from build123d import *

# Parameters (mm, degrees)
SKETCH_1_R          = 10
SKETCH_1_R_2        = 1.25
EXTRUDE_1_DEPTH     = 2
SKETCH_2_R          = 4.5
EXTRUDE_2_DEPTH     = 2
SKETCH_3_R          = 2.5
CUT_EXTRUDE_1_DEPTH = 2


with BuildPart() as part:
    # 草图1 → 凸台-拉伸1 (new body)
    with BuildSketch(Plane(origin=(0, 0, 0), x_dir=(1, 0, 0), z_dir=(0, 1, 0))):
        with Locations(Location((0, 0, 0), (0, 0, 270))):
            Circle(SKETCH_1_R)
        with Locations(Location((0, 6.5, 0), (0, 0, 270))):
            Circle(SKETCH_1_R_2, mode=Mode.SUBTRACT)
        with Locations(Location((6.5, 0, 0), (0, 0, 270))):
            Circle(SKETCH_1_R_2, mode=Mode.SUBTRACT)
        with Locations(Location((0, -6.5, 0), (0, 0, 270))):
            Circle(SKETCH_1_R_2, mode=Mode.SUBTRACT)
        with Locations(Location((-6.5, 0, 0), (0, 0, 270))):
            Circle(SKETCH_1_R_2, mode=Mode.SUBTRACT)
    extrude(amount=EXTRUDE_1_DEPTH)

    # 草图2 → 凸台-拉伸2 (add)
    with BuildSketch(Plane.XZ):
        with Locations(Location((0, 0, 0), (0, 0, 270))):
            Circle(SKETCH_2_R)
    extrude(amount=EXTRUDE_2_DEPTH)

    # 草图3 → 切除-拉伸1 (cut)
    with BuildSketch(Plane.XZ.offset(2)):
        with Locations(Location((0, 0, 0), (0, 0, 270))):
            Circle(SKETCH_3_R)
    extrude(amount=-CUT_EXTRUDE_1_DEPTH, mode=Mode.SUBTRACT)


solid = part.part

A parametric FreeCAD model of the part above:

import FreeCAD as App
import Part
import Sketcher

doc = App.newDocument("Part")
params = doc.addObject("Spreadsheet::Sheet", "Params")
for row, (alias, value) in enumerate([
    ("sketch1_diameter", "20 mm"),
    ("sketch1_diameter2", "2.5 mm"),
    ("pad1_length", "2 mm"),
    ("sketch2_diameter", "9 mm"),
    ("pad2_length", "2 mm"),
    ("sketch3_diameter", "5 mm"),
    ("pocket1_length", "2 mm"),
], start=1):
    params.set(f"A{row}", alias)
    params.set(f"B{row}", "=" + value)
    params.setAlias(f"B{row}", alias)

body = doc.addObject("PartDesign::Body", "Body")

sketch1 = doc.addObject("Sketcher::SketchObject", "Sketch")
body.addObject(sketch1)
sketch1.AttachmentSupport = (doc.XZ_Plane, [""])
sketch1.MapMode = "FlatFace"
sketch1.addGeometry(Part.Circle(App.Vector(0, 0, 0), App.Vector(0, 0, 1), 10), False)
sketch1.addGeometry(Part.Circle(App.Vector(0, -6.5, 0), App.Vector(0, 0, 1), 1.25), False)
sketch1.addGeometry(Part.Circle(App.Vector(-6.5, 0, 0), App.Vector(0, 0, 1), 1.25), False)
sketch1.addGeometry(Part.Circle(App.Vector(6.5, 0, 0), App.Vector(0, 0, 1), 1.25), False)
sketch1.addGeometry(Part.Circle(App.Vector(0, 6.5, 0), App.Vector(0, 0, 1), 1.25), False)
sketch1.addConstraint(Sketcher.Constraint("Coincident", 0, 3, -1, 1))
sketch1.addConstraint(Sketcher.Constraint("Equal", 1, 2))
sketch1.addConstraint(Sketcher.Constraint("Equal", 2, 3))
sketch1.addConstraint(Sketcher.Constraint("Equal", 3, 4))
sketch1.addConstraint(Sketcher.Constraint("Symmetric", 2, 3, 3, 3, -1, 1))
sketch1.addConstraint(Sketcher.Constraint("Symmetric", 1, 3, 4, 3, -1, 1))
sketch1.addConstraint(Sketcher.Constraint("PointOnObject", 1, 3, -2))
sketch1.addConstraint(Sketcher.Constraint("PointOnObject", 2, 3, -1))
sketch1.addConstraint(Sketcher.Constraint("Diameter", 0, 20.0))
sketch1.addConstraint(Sketcher.Constraint("Diameter", 1, 2.5))
sketch1.addConstraint(Sketcher.Constraint("DistanceX", 2, 3, 3, 3, 13.0))
sketch1.addConstraint(Sketcher.Constraint("DistanceY", 1, 3, 4, 3, 13.0))
sketch1.setExpression("Constraints[8]", "Params.sketch1_diameter")
sketch1.setExpression("Constraints[9]", "Params.sketch1_diameter2")
pad1 = doc.addObject("PartDesign::Pad", "Pad")
body.addObject(pad1)
pad1.Profile = sketch1
pad1.setExpression("Length", "Params.pad1_length")
pad1.Reversed = True

sketch2 = doc.addObject("Sketcher::SketchObject", "Sketch001")
body.addObject(sketch2)
sketch2.AttachmentSupport = (doc.XZ_Plane, [""])
sketch2.MapMode = "FlatFace"
sketch2.addGeometry(Part.Circle(App.Vector(0, 0, 0), App.Vector(0, 0, 1), 4.5), False)
sketch2.addConstraint(Sketcher.Constraint("Coincident", 0, 3, -1, 1))
sketch2.addConstraint(Sketcher.Constraint("Diameter", 0, 9.0))
sketch2.setExpression("Constraints[1]", "Params.sketch2_diameter")
pad2 = doc.addObject("PartDesign::Pad", "Pad001")
body.addObject(pad2)
pad2.Profile = sketch2
pad2.setExpression("Length", "Params.pad2_length")

sketch3 = doc.addObject("Sketcher::SketchObject", "Sketch002")
body.addObject(sketch3)
sketch3.AttachmentSupport = (doc.XZ_Plane, [""])
sketch3.MapMode = "FlatFace"
sketch3.AttachmentOffset = App.Placement(App.Vector(0, 0, 2), App.Rotation())
sketch3.addGeometry(Part.Circle(App.Vector(0, 0, 0), App.Vector(0, 0, 1), 2.5), False)
sketch3.addConstraint(Sketcher.Constraint("Coincident", 0, 3, -1, 1))
sketch3.addConstraint(Sketcher.Constraint("Diameter", 0, 5.0))
sketch3.setExpression("Constraints[1]", "Params.sketch3_diameter")
pocket1 = doc.addObject("PartDesign::Pocket", "Pocket")
body.addObject(pocket1)
pocket1.Profile = sketch3
pocket1.setExpression("Length", "Params.pocket1_length")

doc.recompute()
